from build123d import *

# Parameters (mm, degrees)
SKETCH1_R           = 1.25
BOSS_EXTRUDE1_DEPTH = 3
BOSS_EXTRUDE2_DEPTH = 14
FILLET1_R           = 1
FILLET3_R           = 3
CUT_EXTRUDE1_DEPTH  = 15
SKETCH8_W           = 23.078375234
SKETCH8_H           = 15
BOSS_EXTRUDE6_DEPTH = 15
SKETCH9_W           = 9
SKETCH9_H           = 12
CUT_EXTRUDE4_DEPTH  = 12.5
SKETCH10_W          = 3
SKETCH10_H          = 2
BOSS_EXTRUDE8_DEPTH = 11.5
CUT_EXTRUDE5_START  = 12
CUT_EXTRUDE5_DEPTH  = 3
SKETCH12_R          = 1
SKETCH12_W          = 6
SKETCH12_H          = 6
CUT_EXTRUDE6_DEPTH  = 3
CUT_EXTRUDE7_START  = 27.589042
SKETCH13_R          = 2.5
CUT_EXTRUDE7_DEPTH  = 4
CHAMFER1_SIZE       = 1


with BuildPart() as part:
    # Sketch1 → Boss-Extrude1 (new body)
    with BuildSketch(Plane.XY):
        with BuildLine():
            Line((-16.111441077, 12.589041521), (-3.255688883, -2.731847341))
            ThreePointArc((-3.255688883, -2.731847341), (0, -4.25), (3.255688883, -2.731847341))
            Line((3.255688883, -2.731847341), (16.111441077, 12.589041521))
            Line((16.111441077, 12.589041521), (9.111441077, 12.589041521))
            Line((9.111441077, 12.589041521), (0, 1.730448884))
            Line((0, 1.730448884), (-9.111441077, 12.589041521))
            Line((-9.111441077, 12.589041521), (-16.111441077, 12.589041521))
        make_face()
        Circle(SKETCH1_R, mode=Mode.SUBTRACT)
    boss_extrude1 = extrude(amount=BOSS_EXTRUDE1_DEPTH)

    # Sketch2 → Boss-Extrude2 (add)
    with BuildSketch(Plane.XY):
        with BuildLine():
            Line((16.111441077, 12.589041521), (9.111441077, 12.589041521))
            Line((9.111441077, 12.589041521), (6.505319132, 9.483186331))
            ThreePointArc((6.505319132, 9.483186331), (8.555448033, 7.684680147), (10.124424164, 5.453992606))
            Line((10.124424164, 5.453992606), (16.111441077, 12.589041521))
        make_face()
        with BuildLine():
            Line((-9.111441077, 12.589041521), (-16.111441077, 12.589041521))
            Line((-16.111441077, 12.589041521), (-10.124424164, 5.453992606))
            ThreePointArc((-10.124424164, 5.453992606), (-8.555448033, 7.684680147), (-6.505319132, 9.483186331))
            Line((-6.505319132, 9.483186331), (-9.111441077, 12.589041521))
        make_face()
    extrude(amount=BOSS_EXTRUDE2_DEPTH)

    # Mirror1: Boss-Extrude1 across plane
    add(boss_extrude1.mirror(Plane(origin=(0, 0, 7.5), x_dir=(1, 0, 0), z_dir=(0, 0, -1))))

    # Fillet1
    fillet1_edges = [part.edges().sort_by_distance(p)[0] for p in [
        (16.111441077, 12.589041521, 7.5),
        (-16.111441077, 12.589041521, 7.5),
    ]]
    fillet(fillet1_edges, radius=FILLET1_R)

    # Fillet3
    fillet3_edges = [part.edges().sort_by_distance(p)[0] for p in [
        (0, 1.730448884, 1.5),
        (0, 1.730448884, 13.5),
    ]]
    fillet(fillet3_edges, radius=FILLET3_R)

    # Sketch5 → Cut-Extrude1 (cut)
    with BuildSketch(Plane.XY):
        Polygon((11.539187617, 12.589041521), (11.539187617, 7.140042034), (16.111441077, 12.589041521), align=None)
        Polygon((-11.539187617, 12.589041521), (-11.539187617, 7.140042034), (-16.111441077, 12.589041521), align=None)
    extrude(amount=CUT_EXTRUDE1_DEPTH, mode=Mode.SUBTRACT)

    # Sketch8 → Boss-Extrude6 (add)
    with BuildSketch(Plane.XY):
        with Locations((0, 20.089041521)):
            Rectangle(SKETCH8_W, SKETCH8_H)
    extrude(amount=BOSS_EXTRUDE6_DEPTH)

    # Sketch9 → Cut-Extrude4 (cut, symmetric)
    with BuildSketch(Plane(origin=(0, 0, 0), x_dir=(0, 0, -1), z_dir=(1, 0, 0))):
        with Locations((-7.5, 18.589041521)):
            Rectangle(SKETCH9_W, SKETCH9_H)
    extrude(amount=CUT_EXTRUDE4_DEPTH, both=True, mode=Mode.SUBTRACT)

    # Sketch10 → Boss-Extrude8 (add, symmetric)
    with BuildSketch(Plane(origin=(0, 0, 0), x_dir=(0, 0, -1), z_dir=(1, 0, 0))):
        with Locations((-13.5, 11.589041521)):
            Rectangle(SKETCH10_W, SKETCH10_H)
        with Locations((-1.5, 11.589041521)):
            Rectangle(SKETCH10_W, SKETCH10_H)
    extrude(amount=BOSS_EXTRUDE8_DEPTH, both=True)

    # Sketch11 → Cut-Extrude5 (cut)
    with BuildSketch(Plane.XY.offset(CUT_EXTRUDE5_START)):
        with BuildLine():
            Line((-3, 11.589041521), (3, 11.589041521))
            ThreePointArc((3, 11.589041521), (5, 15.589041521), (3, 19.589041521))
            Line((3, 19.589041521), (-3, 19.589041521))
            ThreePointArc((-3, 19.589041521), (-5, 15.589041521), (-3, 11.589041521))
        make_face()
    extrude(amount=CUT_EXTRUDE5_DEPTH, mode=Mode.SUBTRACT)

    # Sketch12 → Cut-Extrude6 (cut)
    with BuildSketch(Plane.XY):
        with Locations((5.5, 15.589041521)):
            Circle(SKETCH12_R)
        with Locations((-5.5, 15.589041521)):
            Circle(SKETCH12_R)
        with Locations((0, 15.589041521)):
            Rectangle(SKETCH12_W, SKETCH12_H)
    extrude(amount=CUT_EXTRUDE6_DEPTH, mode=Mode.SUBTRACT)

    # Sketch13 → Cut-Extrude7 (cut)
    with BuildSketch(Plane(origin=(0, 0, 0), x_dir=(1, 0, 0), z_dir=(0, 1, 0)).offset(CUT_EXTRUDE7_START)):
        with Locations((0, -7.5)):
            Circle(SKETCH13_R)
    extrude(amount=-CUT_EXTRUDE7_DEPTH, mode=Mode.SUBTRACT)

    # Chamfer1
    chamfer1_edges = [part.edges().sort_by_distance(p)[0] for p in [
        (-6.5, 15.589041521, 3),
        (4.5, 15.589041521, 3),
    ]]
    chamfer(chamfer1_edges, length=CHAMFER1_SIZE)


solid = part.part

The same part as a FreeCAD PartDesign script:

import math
import FreeCAD as App
import Part
import Sketcher
Q = App.Units.Quantity


def edges_at(feature, points):
    """Names of the edges that pass closest to the given points."""
    edges = feature.Shape.Edges
    near = lambda p: min(range(len(edges)), key=lambda i: edges[i].distToShape(Part.Vertex(*p))[0])
    return sorted({f"Edge{near(p) + 1}" for p in points})

doc = App.newDocument("Part")
body = doc.addObject("PartDesign::Body", "Body")

# Sketch on XY plane
sketch1 = doc.addObject("Sketcher::SketchObject", "Sketch")
body.addObject(sketch1)
sketch1.AttachmentSupport = (doc.XY_Plane, [""])
sketch1.MapMode = "FlatFace"
sketch1.addGeometry(Part.LineSegment(App.Vector(-16.1, 12.6, 0), App.Vector(-3.3, -2.7, 0)), False)
sketch1.addGeometry(Part.ArcOfCircle(Part.Circle(App.Vector(0, 0, 0), App.Vector(0, 0, 1), 4.2), math.radians(-140), math.radians(-40)), False)
sketch1.addGeometry(Part.LineSegment(App.Vector(3.3, -2.7, 0), App.Vector(16.1, 12.6, 0)), False)
sketch1.addGeometry(Part.LineSegment(App.Vector(16.1, 12.6, 0), App.Vector(9.1, 12.6, 0)), False)
sketch1.addGeometry(Part.LineSegment(App.Vector(9.1, 12.6, 0), App.Vector(0, 1.7, 0)), False)
sketch1.addGeometry(Part.LineSegment(App.Vector(0, 1.7, 0), App.Vector(-9.1, 12.6, 0)), False)
sketch1.addGeometry(Part.LineSegment(App.Vector(-9.1, 12.6, 0), App.Vector(-16.1, 12.6, 0)), False)
sketch1.addGeometry(Part.Circle(App.Vector(0, 0, 0), App.Vector(0, 0, 1), 1.2), False)
sketch1.addConstraint(Sketcher.Constraint("Tangent", 0, 2, 1, 1))
sketch1.addConstraint(Sketcher.Constraint("Tangent", 1, 2, 2, 1))
sketch1.addConstraint(Sketcher.Constraint("Coincident", 2, 2, 3, 1))
sketch1.addConstraint(Sketcher.Constraint("Coincident", 3, 2, 4, 1))
sketch1.addConstraint(Sketcher.Constraint("Coincident", 4, 2, 5, 1))
sketch1.addConstraint(Sketcher.Constraint("Coincident", 5, 2, 6, 1))
sketch1.addConstraint(Sketcher.Constraint("Coincident", 6, 2, 0, 1))
sketch1.addConstraint(Sketcher.Constraint("Horizontal", 3))
sketch1.addConstraint(Sketcher.Constraint("Horizontal", 6))
sketch1.addConstraint(Sketcher.Constraint("Coincident", 1, 3, -1, 1))
sketch1.addConstraint(Sketcher.Constraint("Coincident", 7, 3, -1, 1))
sketch1.addConstraint(Sketcher.Constraint("Symmetric", 3, 2, 5, 2, -2))
sketch1.addConstraint(Sketcher.Constraint("PointOnObject", 4, 2, -2))
sketch1.addConstraint(Sketcher.Constraint("Parallel", 2, 4))
sketch1.addConstraint(Sketcher.Constraint("Parallel", 0, 5))
sketch1.addConstraint(Sketcher.Constraint("Diameter", 7, Q("2.5 mm")))
sketch1.addConstraint(Sketcher.Constraint("DistanceX", 3, 2, 3, 1, Q("7 mm")))
sketch1.addConstraint(Sketcher.Constraint("Angle", 0, Q("-50 deg")))
sketch1.addConstraint(Sketcher.Constraint("Radius", 1, Q("4.25 mm")))
sketch1.addConstraint(Sketcher.Constraint("Distance", 0, Q("20 mm")))
pad1 = doc.addObject("PartDesign::Pad", "Pad")
body.addObject(pad1)
pad1.Profile = sketch1
pad1.Length = 3

# Sketch on XY plane
sketch2 = doc.addObject("Sketcher::SketchObject", "Sketch001")
body.addObject(sketch2)
sketch2.AttachmentSupport = (doc.XY_Plane, [""])
sketch2.MapMode = "FlatFace"
sketch2.addGeometry(Part.LineSegment(App.Vector(16.1, 12.6, 0), App.Vector(9.1, 12.6, 0)), False)
sketch2.addGeometry(Part.LineSegment(App.Vector(9.1, 12.6, 0), App.Vector(6.5, 9.5, 0)), False)
sketch2.addGeometry(Part.ArcOfCircle(Part.Circle(App.Vector(0, 0, 0), App.Vector(0, 0, 1), 11.5), math.radians(28), math.radians(56)), False)
sketch2.addGeometry(Part.LineSegment(App.Vector(10.1, 5.5, 0), App.Vector(16.1, 12.6, 0)), False)
sketch2.addGeometry(Part.LineSegment(App.Vector(-9.1, 12.6, 0), App.Vector(-16.1, 12.6, 0)), False)
sketch2.addGeometry(Part.LineSegment(App.Vector(-16.1, 12.6, 0), App.Vector(-10.1, 5.5, 0)), False)
sketch2.addGeometry(Part.ArcOfCircle(Part.Circle(App.Vector(0, 0, 0), App.Vector(0, 0, 1), 11.5), math.radians(124), math.radians(152)), False)
sketch2.addGeometry(Part.LineSegment(App.Vector(-6.5, 9.5, 0), App.Vector(-9.1, 12.6, 0)), False)
sketch2.addConstraint(Sketcher.Constraint("Coincident", 0, 2, 1, 1))
sketch2.addConstraint(Sketcher.Constraint("Coincident", 1, 2, 2, 2))
sketch2.addConstraint(Sketcher.Constraint("Coincident", 2, 1, 3, 1))
sketch2.addConstraint(Sketcher.Constraint("Coincident", 3, 2, 0, 1))
sketch2.addConstraint(Sketcher.Constraint("Coincident", 4, 2, 5, 1))
sketch2.addConstraint(Sketcher.Constraint("Coincident", 5, 2, 6, 2))
sketch2.addConstraint(Sketcher.Constraint("Coincident", 6, 1, 7, 1))
sketch2.addConstraint(Sketcher.Constraint("Coincident", 7, 2, 4, 1))
sketch2.addConstraint(Sketcher.Constraint("Horizontal", 0))
sketch2.addConstraint(Sketcher.Constraint("Horizontal", 4))
sketch2.addConstraint(Sketcher.Constraint("Coincident", 2, 3, -1, 1))
sketch2.addConstraint(Sketcher.Constraint("Coincident", 6, 3, -1, 1))
sketch2.addConstraint(Sketcher.Constraint("Equal", 2, 6))
sketch2.addConstraint(Sketcher.Constraint("Symmetric", 3, 2, 4, 2, -2))
sketch2.addConstraint(Sketcher.Constraint("Parallel", 1, 3))
sketch2.addConstraint(Sketcher.Constraint("Parallel", 5, 7))
sketch2.addConstraint(Sketcher.Constraint("Horizontal", 2, 1, 5, 2))
sketch2.addConstraint(Sketcher.Constraint("Horizontal", 1, 2, 6, 1))
sketch2.addConstraint(Sketcher.Constraint("Radius", 2, Q("11.5 mm")))
sketch2.addConstraint(Sketcher.Constraint("DistanceX", 0, 2, 0, 1, Q("7 mm")))
sketch2.addConstraint(Sketcher.Constraint("Angle", 1, Q("-130 deg")))
sketch2.addConstraint(Sketcher.Constraint("DistanceX", -1, 1, 0, 2, Q("9.111441 mm")))
sketch2.addConstraint(Sketcher.Constraint("DistanceY", -1, 1, 0, 2, Q("12.589042 mm")))
pad2 = doc.addObject("PartDesign::Pad", "Pad001")
body.addObject(pad2)
pad2.Profile = sketch2
pad2.Length = 14
doc.recompute()

datumplane = doc.addObject("PartDesign::Plane", "DatumPlane")
body.addObject(datumplane)
datumplane.AttachmentSupport = (doc.XY_Plane, [""])
datumplane.MapMode = "FlatFace"
datumplane.AttachmentOffset = App.Placement(App.Vector(0, 0, 7.5), App.Rotation())
mirrored = doc.addObject("PartDesign::Mirrored", "Mirrored")
body.addObject(mirrored)
mirrored.Originals = [pad1]
mirrored.MirrorPlane = (datumplane, [""])
body.Tip = mirrored
doc.recompute()

fillet = doc.addObject("PartDesign::Fillet", "Fillet")
body.addObject(fillet)
fillet.Base = (mirrored, edges_at(mirrored, [(16.111, 12.589, 8.5), (-16.111, 12.589, 8.5)]))
fillet.Radius = 1
doc.recompute()

fillet2 = doc.addObject("PartDesign::Fillet", "Fillet001")
body.addObject(fillet2)
fillet2.Base = (fillet, edges_at(fillet, [(0, 1.73, 1.5), (0, 1.73, 13.5)]))
fillet2.Radius = 3

# Sketch on XY plane
sketch3 = doc.addObject("Sketcher::SketchObject", "Sketch002")
body.addObject(sketch3)
sketch3.AttachmentSupport = (doc.XY_Plane, [""])
sketch3.MapMode = "FlatFace"
sketch3.addGeometry(Part.LineSegment(App.Vector(11.5, 12.6, 0), App.Vector(11.5, 7.1, 0)), False)
sketch3.addGeometry(Part.LineSegment(App.Vector(11.5, 7.1, 0), App.Vector(16.1, 12.6, 0)), False)
sketch3.addGeometry(Part.LineSegment(App.Vector(16.1, 12.6, 0), App.Vector(11.5, 12.6, 0)), False)
sketch3.addGeometry(Part.LineSegment(App.Vector(-11.5, 7.1, 0), App.Vector(-11.5, 12.6, 0)), False)
sketch3.addGeometry(Part.LineSegment(App.Vector(-11.5, 12.6, 0), App.Vector(-16.1, 12.6, 0)), False)
sketch3.addGeometry(Part.LineSegment(App.Vector(-16.1, 12.6, 0), App.Vector(-11.5, 7.1, 0)), False)
sketch3.addConstraint(Sketcher.Constraint("Coincident", 0, 2, 1, 1))
sketch3.addConstraint(Sketcher.Constraint("Coincident", 1, 2, 2, 1))
sketch3.addConstraint(Sketcher.Constraint("Coincident", 2, 2, 0, 1))
sketch3.addConstraint(Sketcher.Constraint("Coincident", 3, 2, 4, 1))
sketch3.addConstraint(Sketcher.Constraint("Coincident", 4, 2, 5, 1))
sketch3.addConstraint(Sketcher.Constraint("Coincident", 5, 2, 3, 1))
sketch3.addConstraint(Sketcher.Constraint("Vertical", 0))
sketch3.addConstraint(Sketcher.Constraint("Horizontal", 2))
sketch3.addConstraint(Sketcher.Constraint("Vertical", 3))
sketch3.addConstraint(Sketcher.Constraint("Horizontal", 4))
sketch3.addConstraint(Sketcher.Constraint("Symmetric", 2, 2, 3, 2, -2))
sketch3.addConstraint(Sketcher.Constraint("Horizontal", 0, 2, 5, 2))
sketch3.addConstraint(Sketcher.Constraint("Equal", 2, 4))
sketch3.addConstraint(Sketcher.Constraint("Angle", 1, Q("50 deg")))
sketch3.addConstraint(Sketcher.Constraint("DistanceY", 0, 2, 0, 1, Q("5.448999 mm")))
sketch3.addConstraint(Sketcher.Constraint("DistanceX", -1, 1, 1, 2, Q("16.111441 mm")))
sketch3.addConstraint(Sketcher.Constraint("DistanceY", -1, 1, 1, 2, Q("12.589042 mm")))
pocket1 = doc.addObject("PartDesign::Pocket", "Pocket")
body.addObject(pocket1)
pocket1.Profile = sketch3
pocket1.Length = 15
pocket1.Reversed = True

# Sketch on XY plane
sketch4 = doc.addObject("Sketcher::SketchObject", "Sketch003")
body.addObject(sketch4)
sketch4.AttachmentSupport = (doc.XY_Plane, [""])
sketch4.MapMode = "FlatFace"
sketch4.addGeometry(Part.LineSegment(App.Vector(-12, 28, 0), App.Vector(-12, 13, 0)), False)
sketch4.addGeometry(Part.LineSegment(App.Vector(-12, 13, 0), App.Vector(12, 13, 0)), False)
sketch4.addGeometry(Part.LineSegment(App.Vector(12, 13, 0), App.Vector(12, 28, 0)), False)
sketch4.addGeometry(Part.LineSegment(App.Vector(12, 28, 0), App.Vector(-12, 28, 0)), False)
sketch4.addConstraint(Sketcher.Constraint("Coincident", 0, 2, 1, 1))
sketch4.addConstraint(Sketcher.Constraint("Coincident", 1, 2, 2, 1))
sketch4.addConstraint(Sketcher.Constraint("Coincident", 2, 2, 3, 1))
sketch4.addConstraint(Sketcher.Constraint("Coincident", 3, 2, 0, 1))
sketch4.addConstraint(Sketcher.Constraint("Vertical", 0))
sketch4.addConstraint(Sketcher.Constraint("Horizontal", 1))
sketch4.addConstraint(Sketcher.Constraint("Vertical", 2))
sketch4.addConstraint(Sketcher.Constraint("Horizontal", 3))
sketch4.addConstraint(Sketcher.Constraint("DistanceY", 0, 2, 0, 1, Q("15 mm")))
sketch4.addConstraint(Sketcher.Constraint("DistanceX", 1, 1, 1, 2, Q("23.078375 mm")))
sketch4.addConstraint(Sketcher.Constraint("DistanceY", -1, 1, 0, 2, Q("12.589042 mm")))
sketch4.addConstraint(Sketcher.Constraint("DistanceX", 0, 2, -1, 1, Q("11.539188 mm")))
pad3 = doc.addObject("PartDesign::Pad", "Pad002")
body.addObject(pad3)
pad3.Profile = sketch4
pad3.Length = 15

# Sketch on YZ plane
sketch5 = doc.addObject("Sketcher::SketchObject", "Sketch004")
body.addObject(sketch5)
sketch5.AttachmentSupport = (doc.YZ_Plane, [""])
sketch5.MapMode = "FlatFace"
sketch5.addGeometry(Part.LineSegment(App.Vector(25, 12, 0), App.Vector(13, 12, 0)), False)
sketch5.addGeometry(Part.LineSegment(App.Vector(13, 12, 0), App.Vector(13, 3, 0)), False)
sketch5.addGeometry(Part.LineSegment(App.Vector(13, 3, 0), App.Vector(25, 3, 0)), False)
sketch5.addGeometry(Part.LineSegment(App.Vector(25, 3, 0), App.Vector(25, 12, 0)), False)
sketch5.addConstraint(Sketcher.Constraint("Coincident", 0, 2, 1, 1))
sketch5.addConstraint(Sketcher.Constraint("Coincident", 1, 2, 2, 1))
sketch5.addConstraint(Sketcher.Constraint("Coincident", 2, 2, 3, 1))
sketch5.addConstraint(Sketcher.Constraint("Coincident", 3, 2, 0, 1))
sketch5.addConstraint(Sketcher.Constraint("Horizontal", 0))
sketch5.addConstraint(Sketcher.Constraint("Vertical", 1))
sketch5.addConstraint(Sketcher.Constraint("Horizontal", 2))
sketch5.addConstraint(Sketcher.Constraint("Vertical", 3))
sketch5.addConstraint(Sketcher.Constraint("DistanceX", 0, 2, 0, 1, Q("12 mm")))
sketch5.addConstraint(Sketcher.Constraint("DistanceY", 1, 2, 1, 1, Q("9 mm")))
sketch5.addConstraint(Sketcher.Constraint("DistanceY", -1, 1, 0, 2, Q("12 mm")))
sketch5.addConstraint(Sketcher.Constraint("DistanceX", -1, 1, 0, 2, Q("12.589042 mm")))
pocket2 = doc.addObject("PartDesign::Pocket", "Pocket001")
body.addObject(pocket2)
pocket2.Profile = sketch5
pocket2.Length = 25
pocket2.Midplane = True

# Sketch on YZ plane
sketch6 = doc.addObject("Sketcher::SketchObject", "Sketch005")
body.addObject(sketch6)
sketch6.AttachmentSupport = (doc.YZ_Plane, [""])
sketch6.MapMode = "FlatFace"
sketch6.addGeometry(Part.LineSegment(App.Vector(12.6, 15, 0), App.Vector(10.6, 15, 0)), False)
sketch6.addGeometry(Part.LineSegment(App.Vector(10.6, 15, 0), App.Vector(10.6, 12, 0)), False)
sketch6.addGeometry(Part.LineSegment(App.Vector(10.6, 12, 0), App.Vector(12.6, 12, 0)), False)
sketch6.addGeometry(Part.LineSegment(App.Vector(12.6, 12, 0), App.Vector(12.6, 15, 0)), False)
sketch6.addGeometry(Part.LineSegment(App.Vector(12.6, 3, 0), App.Vector(10.6, 3, 0)), False)
sketch6.addGeometry(Part.LineSegment(App.Vector(10.6, 3, 0), App.Vector(10.6, 0, 0)), False)
sketch6.addGeometry(Part.LineSegment(App.Vector(10.6, 0, 0), App.Vector(12.6, 0, 0)), False)
sketch6.addGeometry(Part.LineSegment(App.Vector(12.6, 0, 0), App.Vector(12.6, 3, 0)), False)
sketch6.addConstraint(Sketcher.Constraint("Coincident", 0, 2, 1, 1))
sketch6.addConstraint(Sketcher.Constraint("Coincident", 1, 2, 2, 1))
sketch6.addConstraint(Sketcher.Constraint("Coincident", 2, 2, 3, 1))
sketch6.addConstraint(Sketcher.Constraint("Coincident", 3, 2, 0, 1))
sketch6.addConstraint(Sketcher.Constraint("Coincident", 4, 2, 5, 1))
sketch6.addConstraint(Sketcher.Constraint("Coincident", 5, 2, 6, 1))
sketch6.addConstraint(Sketcher.Constraint("Coincident", 6, 2, 7, 1))
sketch6.addConstraint(Sketcher.Constraint("Coincident", 7, 2, 4, 1))
sketch6.addConstraint(Sketcher.Constraint("Horizontal", 0))
sketch6.addConstraint(Sketcher.Constraint("Vertical", 1))
sketch6.addConstraint(Sketcher.Constraint("Horizontal", 2))
sketch6.addConstraint(Sketcher.Constraint("Vertical", 3))
sketch6.addConstraint(Sketcher.Constraint("Horizontal", 4))
sketch6.addConstraint(Sketcher.Constraint("Vertical", 5))
sketch6.addConstraint(Sketcher.Constraint("Horizontal", 6))
sketch6.addConstraint(Sketcher.Constraint("Vertical", 7))
sketch6.addConstraint(Sketcher.Constraint("PointOnObject", 5, 2, -1))
sketch6.addConstraint(Sketcher.Constraint("Vertical", 1, 2, 4, 2))
sketch6.addConstraint(Sketcher.Constraint("Vertical", 3, 2, 6, 2))
sketch6.addConstraint(Sketcher.Constraint("Equal", 3, 5))
sketch6.addConstraint(Sketcher.Constraint("DistanceX", 0, 2, 0, 1, Q("2 mm")))
sketch6.addConstraint(Sketcher.Constraint("DistanceY", 1, 2, 1, 1, Q("3 mm")))
sketch6.addConstraint(Sketcher.Constraint("DistanceY", -1, 1, 0, 2, Q("15 mm")))
sketch6.addConstraint(Sketcher.Constraint("DistanceX", -1, 1, 0, 2, Q("10.589042 mm")))
pad4 = doc.addObject("PartDesign::Pad", "Pad003")
body.addObject(pad4)
pad4.Profile = sketch6
pad4.Length = 23
pad4.Midplane = True

# Sketch on XY plane
sketch7 = doc.addObject("Sketcher::SketchObject", "Sketch006")
body.addObject(sketch7)
sketch7.AttachmentSupport = (doc.XY_Plane, [""])
sketch7.MapMode = "FlatFace"
sketch7.AttachmentOffset = App.Placement(App.Vector(0, 0, 12), App.Rotation())
sketch7.addGeometry(Part.LineSegment(App.Vector(-3, 12, 0), App.Vector(3, 12, 0)), False)
sketch7.addGeometry(Part.ArcOfCircle(Part.Circle(App.Vector(0, 16, 0), App.Vector(0, 0, 1), 5), math.radians(-53), math.radians(53)), False)
sketch7.addGeometry(Part.LineSegment(App.Vector(3, 20, 0), App.Vector(-3, 20, 0)), False)
sketch7.addGeometry(Part.ArcOfCircle(Part.Circle(App.Vector(0, 16, 0), App.Vector(0, 0, 1), 5), math.radians(127), math.radians(233)), False)
sketch7.addConstraint(Sketcher.Constraint("Coincident", 0, 2, 1, 1))
sketch7.addConstraint(Sketcher.Constraint("Coincident", 1, 2, 2, 1))
sketch7.addConstraint(Sketcher.Constraint("Coincident", 2, 2, 3, 1))
sketch7.addConstraint(Sketcher.Constraint("Coincident", 3, 2, 0, 1))
sketch7.addConstraint(Sketcher.Constraint("Horizontal", 0))
sketch7.addConstraint(Sketcher.Constraint("Horizontal", 2))
sketch7.addConstraint(Sketcher.Constraint("Coincident", 3, 3, 1, 3))
sketch7.addConstraint(Sketcher.Constraint("Equal", 1, 3))
sketch7.addConstraint(Sketcher.Constraint("PointOnObject", 1, 3, -2))
sketch7.addConstraint(Sketcher.Constraint("Vertical", 0, 2, 1, 2))
sketch7.addConstraint(Sketcher.Constraint("Radius", 1, Q("5 mm")))
sketch7.addConstraint(Sketcher.Constraint("DistanceX", 0, 1, 0, 2, Q("6 mm")))
sketch7.addConstraint(Sketcher.Constraint("DistanceY", -1, 1, 1, 3, Q("15.589042 mm")))
pocket3 = doc.addObject("PartDesign::Pocket", "Pocket002")
body.addObject(pocket3)
pocket3.Profile = sketch7
pocket3.Length = 3
pocket3.Reversed = True

# Sketch on XY plane
sketch8 = doc.addObject("Sketcher::SketchObject", "Sketch007")
body.addObject(sketch8)
sketch8.AttachmentSupport = (doc.XY_Plane, [""])
sketch8.MapMode = "FlatFace"
sketch8.addGeometry(Part.Circle(App.Vector(5.5, 15.6, 0), App.Vector(0, 0, 1), 1), False)
sketch8.addGeometry(Part.Circle(App.Vector(-5.5, 15.6, 0), App.Vector(0, 0, 1), 1), False)
sketch8.addGeometry(Part.LineSegment(App.Vector(-3, 18.6, 0), App.Vector(-3, 12.6, 0)), False)
sketch8.addGeometry(Part.LineSegment(App.Vector(-3, 12.6, 0), App.Vector(3, 12.6, 0)), False)
sketch8.addGeometry(Part.LineSegment(App.Vector(3, 12.6, 0), App.Vector(3, 18.6, 0)), False)
sketch8.addGeometry(Part.LineSegment(App.Vector(3, 18.6, 0), App.Vector(-3, 18.6, 0)), False)
sketch8.addConstraint(Sketcher.Constraint("Coincident", 2, 2, 3, 1))
sketch8.addConstraint(Sketcher.Constraint("Coincident", 3, 2, 4, 1))
sketch8.addConstraint(Sketcher.Constraint("Coincident", 4, 2, 5, 1))
sketch8.addConstraint(Sketcher.Constraint("Coincident", 5, 2, 2, 1))
sketch8.addConstraint(Sketcher.Constraint("Vertical", 2))
sketch8.addConstraint(Sketcher.Constraint("Horizontal", 3))
sketch8.addConstraint(Sketcher.Constraint("Vertical", 4))
sketch8.addConstraint(Sketcher.Constraint("Horizontal", 5))
sketch8.addConstraint(Sketcher.Constraint("Equal", 0, 1))
sketch8.addConstraint(Sketcher.Constraint("Symmetric", 0, 3, 1, 3, -2))
sketch8.addConstraint(Sketcher.Constraint("Equal", 5, 2))
sketch8.addConstraint(Sketcher.Constraint("Diameter", 0, Q("2 mm")))
sketch8.addConstraint(Sketcher.Constraint("DistanceX", 3, 1, 3, 2, Q("6 mm")))
sketch8.addConstraint(Sketcher.Constraint("DistanceX", 2, 2, -1, 1, Q("3 mm")))
sketch8.addConstraint(Sketcher.Constraint("DistanceX", 1, 3, 0, 3, Q("11 mm")))
sketch8.addConstraint(Sketcher.Constraint("DistanceY", 2, 2, 1, 3, Q("3 mm")))
sketch8.addConstraint(Sketcher.Constraint("DistanceY", -1, 1, 0, 3, Q("15.589042 mm")))
pocket4 = doc.addObject("PartDesign::Pocket", "Pocket003")
body.addObject(pocket4)
pocket4.Profile = sketch8
pocket4.Length = 3
pocket4.Reversed = True

# Sketch on XZ plane
sketch9 = doc.addObject("Sketcher::SketchObject", "Sketch008")
body.addObject(sketch9)
sketch9.AttachmentSupport = (doc.XZ_Plane, [""])
sketch9.MapMode = "FlatFace"
sketch9.AttachmentOffset = App.Placement(App.Vector(0, 0, -27.589042), App.Rotation())
sketch9.addGeometry(Part.Circle(App.Vector(0, 7.5, 0), App.Vector(0, 0, 1), 2.5), False)
sketch9.addConstraint(Sketcher.Constraint("PointOnObject", 0, 3, -2))
sketch9.addConstraint(Sketcher.Constraint("Diameter", 0, Q("5 mm")))
sketch9.addConstraint(Sketcher.Constraint("DistanceY", -1, 1, 0, 3, Q("7.5 mm")))
pocket5 = doc.addObject("PartDesign::Pocket", "Pocket004")
body.addObject(pocket5)
pocket5.Profile = sketch9
pocket5.Length = 4
pocket5.Reversed = True
doc.recompute()

chamfer = doc.addObject("PartDesign::Chamfer", "Chamfer")
body.addObject(chamfer)
chamfer.Base = (pocket5, edges_at(pocket5, [(-6.5, 15.589, 3), (4.5, 15.589, 3)]))
chamfer.Size = 1

doc.recompute()
